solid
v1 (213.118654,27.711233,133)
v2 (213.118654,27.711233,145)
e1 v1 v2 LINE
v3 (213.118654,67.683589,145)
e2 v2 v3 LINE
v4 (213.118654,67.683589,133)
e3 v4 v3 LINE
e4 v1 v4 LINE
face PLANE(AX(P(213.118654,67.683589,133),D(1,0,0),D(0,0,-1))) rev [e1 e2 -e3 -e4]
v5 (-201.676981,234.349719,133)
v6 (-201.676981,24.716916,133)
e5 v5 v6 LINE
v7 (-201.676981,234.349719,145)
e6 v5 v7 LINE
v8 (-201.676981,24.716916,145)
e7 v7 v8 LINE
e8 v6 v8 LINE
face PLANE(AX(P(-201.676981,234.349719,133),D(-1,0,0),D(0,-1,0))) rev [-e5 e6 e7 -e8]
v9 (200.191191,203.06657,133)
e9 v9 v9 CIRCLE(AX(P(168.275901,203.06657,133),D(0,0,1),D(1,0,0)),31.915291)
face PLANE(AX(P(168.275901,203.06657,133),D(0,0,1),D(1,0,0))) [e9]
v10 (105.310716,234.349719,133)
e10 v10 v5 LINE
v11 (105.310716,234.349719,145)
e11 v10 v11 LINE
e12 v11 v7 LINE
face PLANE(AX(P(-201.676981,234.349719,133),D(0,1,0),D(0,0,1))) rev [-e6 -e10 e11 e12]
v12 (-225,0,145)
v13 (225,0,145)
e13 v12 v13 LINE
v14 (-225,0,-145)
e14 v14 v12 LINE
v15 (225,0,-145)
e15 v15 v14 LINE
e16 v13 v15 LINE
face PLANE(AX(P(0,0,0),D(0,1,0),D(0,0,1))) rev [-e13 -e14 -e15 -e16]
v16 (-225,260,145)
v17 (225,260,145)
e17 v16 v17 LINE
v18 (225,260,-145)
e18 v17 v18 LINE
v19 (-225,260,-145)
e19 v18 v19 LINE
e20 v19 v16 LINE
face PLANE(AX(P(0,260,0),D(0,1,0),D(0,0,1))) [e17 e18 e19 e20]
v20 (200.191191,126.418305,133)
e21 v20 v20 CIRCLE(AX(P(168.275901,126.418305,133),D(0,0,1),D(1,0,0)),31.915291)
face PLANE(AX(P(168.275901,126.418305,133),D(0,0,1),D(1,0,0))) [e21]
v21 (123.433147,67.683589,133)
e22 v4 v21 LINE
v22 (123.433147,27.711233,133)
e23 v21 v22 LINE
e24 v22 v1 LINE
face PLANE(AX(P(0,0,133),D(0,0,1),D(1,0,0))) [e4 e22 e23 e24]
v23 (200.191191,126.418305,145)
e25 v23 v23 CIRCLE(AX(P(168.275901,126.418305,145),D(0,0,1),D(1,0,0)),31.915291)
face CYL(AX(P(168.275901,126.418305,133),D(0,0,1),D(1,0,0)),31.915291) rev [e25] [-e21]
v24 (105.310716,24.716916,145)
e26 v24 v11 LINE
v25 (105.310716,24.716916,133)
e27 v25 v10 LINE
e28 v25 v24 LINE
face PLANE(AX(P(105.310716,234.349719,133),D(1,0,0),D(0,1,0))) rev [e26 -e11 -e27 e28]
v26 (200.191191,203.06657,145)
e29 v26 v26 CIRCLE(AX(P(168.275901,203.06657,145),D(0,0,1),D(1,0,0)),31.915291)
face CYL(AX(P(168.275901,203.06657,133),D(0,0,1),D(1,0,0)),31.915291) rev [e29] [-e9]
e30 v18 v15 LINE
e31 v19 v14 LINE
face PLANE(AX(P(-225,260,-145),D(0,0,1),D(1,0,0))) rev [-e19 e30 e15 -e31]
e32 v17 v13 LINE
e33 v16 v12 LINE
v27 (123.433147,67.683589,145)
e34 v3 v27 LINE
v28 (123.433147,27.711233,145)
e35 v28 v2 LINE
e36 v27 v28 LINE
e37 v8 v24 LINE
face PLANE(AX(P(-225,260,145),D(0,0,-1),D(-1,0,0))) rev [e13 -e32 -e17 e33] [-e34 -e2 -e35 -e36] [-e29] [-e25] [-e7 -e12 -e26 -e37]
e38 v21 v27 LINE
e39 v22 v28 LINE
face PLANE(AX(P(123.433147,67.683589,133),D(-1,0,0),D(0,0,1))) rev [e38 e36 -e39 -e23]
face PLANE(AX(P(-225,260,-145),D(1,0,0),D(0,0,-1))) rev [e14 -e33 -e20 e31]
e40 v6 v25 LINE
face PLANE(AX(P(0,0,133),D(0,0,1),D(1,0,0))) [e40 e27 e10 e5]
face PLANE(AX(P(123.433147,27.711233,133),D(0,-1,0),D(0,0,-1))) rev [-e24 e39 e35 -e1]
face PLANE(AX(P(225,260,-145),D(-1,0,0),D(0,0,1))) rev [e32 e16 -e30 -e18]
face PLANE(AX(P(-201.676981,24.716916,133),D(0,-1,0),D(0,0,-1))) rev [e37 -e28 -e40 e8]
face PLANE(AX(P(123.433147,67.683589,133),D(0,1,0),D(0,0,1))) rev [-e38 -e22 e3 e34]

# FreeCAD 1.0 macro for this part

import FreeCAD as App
import Part
import Sketcher

V = App.Vector
Q = App.Units.Quantity

doc = App.newDocument("Part")
body = doc.addObject("PartDesign::Body", "Body")

sketch1 = doc.addObject("Sketcher::SketchObject", "Sketch")
body.addObject(sketch1)
sketch1.AttachmentSupport = (doc.XZ_Plane, [""])
sketch1.MapMode = "FlatFace"
sketch1.addGeometry([
    Part.LineSegment(V(-225, -145, 0), V(-225, 145, 0)),
    Part.LineSegment(V(-225, 145, 0), V(225, 145, 0)),
    Part.LineSegment(V(225, 145, 0), V(225, -145, 0)),
    Part.LineSegment(V(225, -145, 0), V(-225, -145, 0)),
], False)
sketch1.addConstraint([
    Sketcher.Constraint("Coincident", 0, 2, 1, 1),
    Sketcher.Constraint("Coincident", 1, 2, 2, 1),
    Sketcher.Constraint("Coincident", 2, 2, 3, 1),
    Sketcher.Constraint("Coincident", 3, 2, 0, 1),
    Sketcher.Constraint("Vertical", 0),
    Sketcher.Constraint("Horizontal", 1),
    Sketcher.Constraint("Vertical", 2),
    Sketcher.Constraint("Horizontal", 3),
    Sketcher.Constraint("Symmetric", 0, 2, 2, 2, -1, 1),
    Sketcher.Constraint("DistanceX", 1, 1, 1, 2, Q("450 mm")),
    Sketcher.Constraint("DistanceY", 0, 1, 0, 2, Q("290 mm")),
])
pad1 = doc.addObject("PartDesign::Pad", "Pad")
body.addObject(pad1)
pad1.Profile = sketch1
pad1.Length = 260
pad1.Reversed = True

sketch2 = doc.addObject("Sketcher::SketchObject", "Sketch001")
body.addObject(sketch2)
sketch2.AttachmentSupport = (doc.XY_Plane, [""])
sketch2.MapMode = "FlatFace"
sketch2.AttachmentOffset = App.Placement(V(0, 0, 145), App.Rotation())
sketch2.addGeometry([
    Part.Circle(V(168, 203, 0), V(0, 0, 1), 32),
    Part.Circle(V(168, 126, 0), V(0, 0, 1), 32),
    Part.LineSegment(V(123, 68, 0), V(123, 28, 0)),
    Part.LineSegment(V(123, 28, 0), V(213, 28, 0)),
    Part.LineSegment(V(213, 28, 0), V(213, 68, 0)),
    Part.LineSegment(V(213, 68, 0), V(123, 68, 0)),
    Part.LineSegment(V(-202, 234, 0), V(-202, 25, 0)),
    Part.LineSegment(V(-202, 25, 0), V(105, 25, 0)),
    Part.LineSegment(V(105, 25, 0), V(105, 234, 0)),
    Part.LineSegment(V(105, 234, 0), V(-202, 234, 0)),
], False)
sketch2.addConstraint([
    Sketcher.Constraint("Coincident", 2, 2, 3, 1),
    Sketcher.Constraint("Coincident", 3, 2, 4, 1),
    Sketcher.Constraint("Coincident", 4, 2, 5, 1),
    Sketcher.Constraint("Coincident", 5, 2, 2, 1),
    Sketcher.Constraint("Coincident", 6, 2, 7, 1),
    Sketcher.Constraint("Coincident", 7, 2, 8, 1),
    Sketcher.Constraint("Coincident", 8, 2, 9, 1),
    Sketcher.Constraint("Coincident", 9, 2, 6, 1),
    Sketcher.Constraint("Vertical", 2),
    Sketcher.Constraint("Horizontal", 3),
    Sketcher.Constraint("Vertical", 4),
    Sketcher.Constraint("Horizontal", 5),
    Sketcher.Constraint("Vertical", 6),
    Sketcher.Constraint("Horizontal", 7),
    Sketcher.Constraint("Vertical", 8),
    Sketcher.Constraint("Horizontal", 9),
    Sketcher.Constraint("Equal", 0, 1),
    Sketcher.Constraint("Vertical", 0, 3, 1, 3),
    Sketcher.Constraint("Diameter", 0, Q("63.830581 mm")),
    Sketcher.Constraint("DistanceX", -1, 1, 0, 3, Q("168.275901 mm")),
    Sketcher.Constraint("DistanceX", 3, 1, 3, 2, Q("89.685507 mm")),
    Sketcher.Constraint("DistanceX", 7, 1, 7, 2, Q("306.987697 mm")),
    Sketcher.Constraint("DistanceY", 2, 2, 2, 1, Q("39.972356 mm")),
    Sketcher.Constraint("DistanceY", 6, 2, 6, 1, Q("209.632802 mm")),
    Sketcher.Constraint("DistanceY", -1, 1, 0, 3, Q("203.06657 mm")),
    Sketcher.Constraint("DistanceY", -1, 1, 4, 2, Q("67.683589 mm")),
    Sketcher.Constraint("DistanceX", 6, 2, -1, 1, Q("201.676981 mm")),
    Sketcher.Constraint("DistanceY", -1, 1, 8, 2, Q("234.349719 mm")),
    Sketcher.Constraint("DistanceX", 6, 2, 2, 2, Q("325.110128 mm")),
    Sketcher.Constraint("DistanceY", 6, 2, 1, 3, Q("101.701389 mm")),
])
pocket1 = doc.addObject("PartDesign::Pocket", "Pocket")
body.addObject(pocket1)
pocket1.Profile = sketch2
pocket1.Length = 12

doc.recompute()
